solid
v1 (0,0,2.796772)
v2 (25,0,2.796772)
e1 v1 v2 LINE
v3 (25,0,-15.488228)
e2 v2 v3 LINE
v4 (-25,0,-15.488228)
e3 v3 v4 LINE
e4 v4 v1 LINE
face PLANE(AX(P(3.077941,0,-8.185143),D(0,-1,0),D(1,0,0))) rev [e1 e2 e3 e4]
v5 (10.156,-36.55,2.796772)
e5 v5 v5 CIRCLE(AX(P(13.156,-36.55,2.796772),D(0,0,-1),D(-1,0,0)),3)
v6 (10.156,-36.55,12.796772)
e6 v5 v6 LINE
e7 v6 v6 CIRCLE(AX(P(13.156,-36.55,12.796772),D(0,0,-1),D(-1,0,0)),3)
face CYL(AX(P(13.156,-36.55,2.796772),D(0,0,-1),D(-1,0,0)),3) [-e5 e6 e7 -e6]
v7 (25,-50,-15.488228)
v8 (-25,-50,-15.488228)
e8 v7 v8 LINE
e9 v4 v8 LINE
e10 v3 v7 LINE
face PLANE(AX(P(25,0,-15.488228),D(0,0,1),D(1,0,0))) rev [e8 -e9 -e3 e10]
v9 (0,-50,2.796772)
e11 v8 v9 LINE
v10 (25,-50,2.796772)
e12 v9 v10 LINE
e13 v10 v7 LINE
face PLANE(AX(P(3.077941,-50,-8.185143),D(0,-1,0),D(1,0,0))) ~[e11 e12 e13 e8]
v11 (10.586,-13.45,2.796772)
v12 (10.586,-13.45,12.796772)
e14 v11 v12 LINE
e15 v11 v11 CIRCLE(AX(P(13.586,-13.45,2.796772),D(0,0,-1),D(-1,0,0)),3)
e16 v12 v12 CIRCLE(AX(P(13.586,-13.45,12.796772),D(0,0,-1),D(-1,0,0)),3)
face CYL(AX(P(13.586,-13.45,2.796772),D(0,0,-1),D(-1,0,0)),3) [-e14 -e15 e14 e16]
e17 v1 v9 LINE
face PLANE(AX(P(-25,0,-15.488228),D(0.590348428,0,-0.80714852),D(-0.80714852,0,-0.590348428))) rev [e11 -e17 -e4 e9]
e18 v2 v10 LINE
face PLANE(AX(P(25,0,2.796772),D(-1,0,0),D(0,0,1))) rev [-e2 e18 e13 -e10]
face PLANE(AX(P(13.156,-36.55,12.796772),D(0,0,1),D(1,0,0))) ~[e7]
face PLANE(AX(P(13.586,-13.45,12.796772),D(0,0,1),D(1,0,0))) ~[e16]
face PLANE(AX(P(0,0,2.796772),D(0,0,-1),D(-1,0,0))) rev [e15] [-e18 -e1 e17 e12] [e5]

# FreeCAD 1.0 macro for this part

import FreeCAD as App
import Part
import Sketcher

V = App.Vector
Q = App.Units.Quantity


def add_polygon(sketch, points):
    """Adds a closed chain of lines whose ends are joined by coincident constraints."""
    first, n = sketch.GeometryCount, len(points)
    for a, b in zip(points, points[1:] + points[:1]):
        sketch.addGeometry(Part.LineSegment(App.Vector(*a, 0), App.Vector(*b, 0)), False)
    for i in range(n):
        sketch.addConstraint(Sketcher.Constraint("Coincident", first + i, 2, first + (i + 1) % n, 1))

doc = App.newDocument("Part")
params = doc.addObject("Spreadsheet::Sheet", "Params")
for row, (alias, value) in enumerate([
    ("sketch1_width", "50 mm"),
    ("sketch1_width2", "25 mm"),
    ("pad1_length", "50 mm"),
    ("sketch2_diameter", "6 mm"),
    ("pad2_length", "10 mm"),
], start=1):
    params.set(f"A{row}", alias)
    params.set(f"B{row}", "=" + value)
    params.setAlias(f"B{row}", alias)

body = doc.addObject("PartDesign::Body", "Body")

# Sketch on XZ plane
sketch1 = doc.addObject("Sketcher::SketchObject", "Sketch")
body.addObject(sketch1)
sketch1.AttachmentSupport = (doc.XZ_Plane, [""])
sketch1.MapMode = "FlatFace"
add_polygon(sketch1, [(-25, 3), (-25, -15), (25, -15), (0, 3)])  # lines 0-3
sketch1.addConstraint(Sketcher.Constraint("Vertical", 0))
sketch1.addConstraint(Sketcher.Constraint("Horizontal", 1))
sketch1.addConstraint(Sketcher.Constraint("Horizontal", 3))
sketch1.addConstraint(Sketcher.Constraint("PointOnObject", 2, 2, -2))
sketch1.addConstraint(Sketcher.Constraint("DistanceX", 1, 1, 1, 2, Q("50 mm")))
sketch1.addConstraint(Sketcher.Constraint("DistanceX", 3, 2, 3, 1, Q("25 mm")))
sketch1.addConstraint(Sketcher.Constraint("DistanceY", 0, 2, 0, 1, Q("18.285 mm")))
sketch1.addConstraint(Sketcher.Constraint("DistanceY", -1, 1, 2, 2, Q("2.796772 mm")))
sketch1.setExpression("Constraints[8]", "Params.sketch1_width")
sketch1.setExpression("Constraints[9]", "Params.sketch1_width2")
pad1 = doc.addObject("PartDesign::Pad", "Pad")
body.addObject(pad1)
pad1.Profile = sketch1
pad1.setExpression("Length", "Params.pad1_length")

# Sketch on XY plane
sketch2 = doc.addObject("Sketcher::SketchObject", "Sketch001")
body.addObject(sketch2)
sketch2.AttachmentSupport = (doc.XY_Plane, [""])
sketch2.MapMode = "FlatFace"
sketch2.AttachmentOffset = App.Placement(V(0, 0, 2.796772), App.Rotation())
sketch2.addGeometry(Part.Circle(V(-13.6, -13.4, 0), V(0, 0, 1), 3), False)
sketch2.addGeometry(Part.Circle(V(-13.2, -36.5, 0), V(0, 0, 1), 3), False)
sketch2.addConstraint(Sketcher.Constraint("Equal", 0, 1))
sketch2.addConstraint(Sketcher.Constraint("Diameter", 0, Q("6 mm")))
sketch2.addConstraint(Sketcher.Constraint("DistanceY", 1, 3, 0, 3, Q("23.1 mm")))
sketch2.addConstraint(Sketcher.Constraint("DistanceY", 0, 3, -1, 1, Q("13.45 mm")))
sketch2.addConstraint(Sketcher.Constraint("DistanceX", 0, 3, 1, 3, Q("0.43 mm")))
sketch2.addConstraint(Sketcher.Constraint("DistanceX", 0, 3, -1, 1, Q("13.586 mm")))
sketch2.setExpression("Constraints[1]", "Params.sketch2_diameter")
pad2 = doc.addObject("PartDesign::Pad", "Pad001")
body.addObject(pad2)
pad2.Profile = sketch2
pad2.setExpression("Length", "Params.pad2_length")
body2 = doc.addObject("PartDesign::Body", "Body001")
doc.recompute()

mirroring = doc.addObject("Part::Mirroring", "Mirroring")
mirroring.Source = body
mirroring.Base = V(0, 0, 0)
mirroring.Normal = V(1, 0, 0)
body2.BaseFeature = mirroring
doc.recompute()
body.Visibility = False
mirroring.Visibility = False

doc.recompute()
